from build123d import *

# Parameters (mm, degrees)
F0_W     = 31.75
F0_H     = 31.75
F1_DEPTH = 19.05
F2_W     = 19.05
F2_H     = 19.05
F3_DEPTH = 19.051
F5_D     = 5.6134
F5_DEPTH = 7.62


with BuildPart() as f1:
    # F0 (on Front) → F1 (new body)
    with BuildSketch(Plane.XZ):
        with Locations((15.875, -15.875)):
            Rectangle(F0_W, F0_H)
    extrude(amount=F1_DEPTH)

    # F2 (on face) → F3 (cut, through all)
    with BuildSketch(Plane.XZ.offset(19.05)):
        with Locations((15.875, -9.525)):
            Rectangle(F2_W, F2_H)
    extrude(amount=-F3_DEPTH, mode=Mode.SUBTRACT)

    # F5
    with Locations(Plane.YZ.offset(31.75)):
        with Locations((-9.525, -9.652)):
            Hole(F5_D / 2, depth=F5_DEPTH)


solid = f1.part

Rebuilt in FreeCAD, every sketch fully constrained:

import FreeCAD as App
import Part
import Sketcher

V = App.Vector
Q = App.Units.Quantity

doc = App.newDocument("Part")
params = doc.addObject("Spreadsheet::Sheet", "Params")
for row, (alias, value) in enumerate([
    ("sketch1_width", "1.25 in"),
    ("pad1_length", "0.75 in"),
    ("sketch2_width", "0.75 in"),
    ("sketch3_diameter", "0.221 in"),
    ("hole_diameter", "0.221 in"),
    ("hole_depth", "0.3 in"),
], start=1):
    params.set(f"A{row}", alias)
    params.set(f"B{row}", "=" + value)
    params.setAlias(f"B{row}", alias)

body = doc.addObject("PartDesign::Body", "Body")

# Sketch on XZ plane
sketch1 = doc.addObject("Sketcher::SketchObject", "Sketch")
body.addObject(sketch1)
sketch1.AttachmentSupport = (doc.XZ_Plane, [""])
sketch1.MapMode = "FlatFace"
sketch1.addGeometry([
    Part.LineSegment(V(0, 0, 0), V(0, -31.75, 0)),
    Part.LineSegment(V(0, -31.75, 0), V(31.75, -31.75, 0)),
    Part.LineSegment(V(31.75, -31.75, 0), V(31.75, 0, 0)),
    Part.LineSegment(V(31.75, 0, 0), V(0, 0, 0)),
], False)
sketch1.addConstraint([
    Sketcher.Constraint("Coincident", 0, 2, 1, 1),
    Sketcher.Constraint("Coincident", 1, 2, 2, 1),
    Sketcher.Constraint("Coincident", 2, 2, 3, 1),
    Sketcher.Constraint("Coincident", 3, 2, 0, 1),
    Sketcher.Constraint("Vertical", 0),
    Sketcher.Constraint("Horizontal", 1),
    Sketcher.Constraint("Vertical", 2),
    Sketcher.Constraint("Horizontal", 3),
    Sketcher.Constraint("Coincident", 3, 2, -1, 1),
    Sketcher.Constraint("Equal", 3, 0),
    Sketcher.Constraint("DistanceX", 1, 1, 1, 2, Q("1.25 in")),
])
sketch1.setExpression("Constraints[10]", "Params.sketch1_width")
pad1 = doc.addObject("PartDesign::Pad", "Pad")
body.addObject(pad1)
pad1.Profile = sketch1
pad1.setExpression("Length", "Params.pad1_length")

# Sketch on XZ plane
sketch2 = doc.addObject("Sketcher::SketchObject", "Sketch001")
body.addObject(sketch2)
sketch2.AttachmentSupport = (doc.XZ_Plane, [""])
sketch2.MapMode = "FlatFace"
sketch2.AttachmentOffset = App.Placement(V(0, 0, 0.75 * 25.4), App.Rotation())
sketch2.addGeometry([
    Part.LineSegment(V(6.35, 0, 0), V(6.35, -19.05, 0)),
    Part.LineSegment(V(6.35, -19.05, 0), V(25.4, -19.05, 0)),
    Part.LineSegment(V(25.4, -19.05, 0), V(25.4, 0, 0)),
    Part.LineSegment(V(25.4, 0, 0), V(6.35, 0, 0)),
], False)
sketch2.addConstraint([
    Sketcher.Constraint("Coincident", 0, 2, 1, 1),
    Sketcher.Constraint("Coincident", 1, 2, 2, 1),
    Sketcher.Constraint("Coincident", 2, 2, 3, 1),
    Sketcher.Constraint("Coincident", 3, 2, 0, 1),
    Sketcher.Constraint("Vertical", 0),
    Sketcher.Constraint("Horizontal", 1),
    Sketcher.Constraint("Vertical", 2),
    Sketcher.Constraint("Horizontal", 3),
    Sketcher.Constraint("PointOnObject", 2, 2, -1),
    Sketcher.Constraint("Equal", 3, 0),
    Sketcher.Constraint("DistanceX", -1, 1, 1, 2, Q("1 in")),
    Sketcher.Constraint("DistanceX", 1, 1, 1, 2, Q("0.75 in")),
])
sketch2.setExpression("Constraints[11]", "Params.sketch2_width")
pocket1 = doc.addObject("PartDesign::Pocket", "Pocket")
body.addObject(pocket1)
pocket1.Profile = sketch2
pocket1.Type = "ThroughAll"

# Sketch on YZ plane
sketch3 = doc.addObject("Sketcher::SketchObject", "Sketch002")
body.addObject(sketch3)
sketch3.AttachmentSupport = (doc.YZ_Plane, [""])
sketch3.MapMode = "FlatFace"
sketch3.AttachmentOffset = App.Placement(V(0, 0, 1.25 * 25.4), App.Rotation())
sketch3.addGeometry(Part.Circle(V(-9.525, -9.652, 0), V(0, 0, 1), 2.8067), False)
sketch3.addConstraint([
    Sketcher.Constraint("Diameter", 0, Q("0.221 in")),
    Sketcher.Constraint("DistanceY", 0, 3, -1, 1, Q("0.38 in")),
    Sketcher.Constraint("DistanceX", 0, 3, -1, 1, Q("0.375 in")),
])
sketch3.setExpression("Constraints[0]", "Params.sketch3_diameter")
doc.recompute()
hole = doc.addObject("PartDesign::Hole", "Hole")
body.addObject(hole)
hole.Profile = sketch3
hole.ThreadType = "None"
hole.setExpression("Diameter", "Params.hole_diameter")
hole.DepthType = "Dimension"
hole.setExpression("Depth", "Params.hole_depth")
hole.DrillPoint = "Flat"

doc.recompute()
